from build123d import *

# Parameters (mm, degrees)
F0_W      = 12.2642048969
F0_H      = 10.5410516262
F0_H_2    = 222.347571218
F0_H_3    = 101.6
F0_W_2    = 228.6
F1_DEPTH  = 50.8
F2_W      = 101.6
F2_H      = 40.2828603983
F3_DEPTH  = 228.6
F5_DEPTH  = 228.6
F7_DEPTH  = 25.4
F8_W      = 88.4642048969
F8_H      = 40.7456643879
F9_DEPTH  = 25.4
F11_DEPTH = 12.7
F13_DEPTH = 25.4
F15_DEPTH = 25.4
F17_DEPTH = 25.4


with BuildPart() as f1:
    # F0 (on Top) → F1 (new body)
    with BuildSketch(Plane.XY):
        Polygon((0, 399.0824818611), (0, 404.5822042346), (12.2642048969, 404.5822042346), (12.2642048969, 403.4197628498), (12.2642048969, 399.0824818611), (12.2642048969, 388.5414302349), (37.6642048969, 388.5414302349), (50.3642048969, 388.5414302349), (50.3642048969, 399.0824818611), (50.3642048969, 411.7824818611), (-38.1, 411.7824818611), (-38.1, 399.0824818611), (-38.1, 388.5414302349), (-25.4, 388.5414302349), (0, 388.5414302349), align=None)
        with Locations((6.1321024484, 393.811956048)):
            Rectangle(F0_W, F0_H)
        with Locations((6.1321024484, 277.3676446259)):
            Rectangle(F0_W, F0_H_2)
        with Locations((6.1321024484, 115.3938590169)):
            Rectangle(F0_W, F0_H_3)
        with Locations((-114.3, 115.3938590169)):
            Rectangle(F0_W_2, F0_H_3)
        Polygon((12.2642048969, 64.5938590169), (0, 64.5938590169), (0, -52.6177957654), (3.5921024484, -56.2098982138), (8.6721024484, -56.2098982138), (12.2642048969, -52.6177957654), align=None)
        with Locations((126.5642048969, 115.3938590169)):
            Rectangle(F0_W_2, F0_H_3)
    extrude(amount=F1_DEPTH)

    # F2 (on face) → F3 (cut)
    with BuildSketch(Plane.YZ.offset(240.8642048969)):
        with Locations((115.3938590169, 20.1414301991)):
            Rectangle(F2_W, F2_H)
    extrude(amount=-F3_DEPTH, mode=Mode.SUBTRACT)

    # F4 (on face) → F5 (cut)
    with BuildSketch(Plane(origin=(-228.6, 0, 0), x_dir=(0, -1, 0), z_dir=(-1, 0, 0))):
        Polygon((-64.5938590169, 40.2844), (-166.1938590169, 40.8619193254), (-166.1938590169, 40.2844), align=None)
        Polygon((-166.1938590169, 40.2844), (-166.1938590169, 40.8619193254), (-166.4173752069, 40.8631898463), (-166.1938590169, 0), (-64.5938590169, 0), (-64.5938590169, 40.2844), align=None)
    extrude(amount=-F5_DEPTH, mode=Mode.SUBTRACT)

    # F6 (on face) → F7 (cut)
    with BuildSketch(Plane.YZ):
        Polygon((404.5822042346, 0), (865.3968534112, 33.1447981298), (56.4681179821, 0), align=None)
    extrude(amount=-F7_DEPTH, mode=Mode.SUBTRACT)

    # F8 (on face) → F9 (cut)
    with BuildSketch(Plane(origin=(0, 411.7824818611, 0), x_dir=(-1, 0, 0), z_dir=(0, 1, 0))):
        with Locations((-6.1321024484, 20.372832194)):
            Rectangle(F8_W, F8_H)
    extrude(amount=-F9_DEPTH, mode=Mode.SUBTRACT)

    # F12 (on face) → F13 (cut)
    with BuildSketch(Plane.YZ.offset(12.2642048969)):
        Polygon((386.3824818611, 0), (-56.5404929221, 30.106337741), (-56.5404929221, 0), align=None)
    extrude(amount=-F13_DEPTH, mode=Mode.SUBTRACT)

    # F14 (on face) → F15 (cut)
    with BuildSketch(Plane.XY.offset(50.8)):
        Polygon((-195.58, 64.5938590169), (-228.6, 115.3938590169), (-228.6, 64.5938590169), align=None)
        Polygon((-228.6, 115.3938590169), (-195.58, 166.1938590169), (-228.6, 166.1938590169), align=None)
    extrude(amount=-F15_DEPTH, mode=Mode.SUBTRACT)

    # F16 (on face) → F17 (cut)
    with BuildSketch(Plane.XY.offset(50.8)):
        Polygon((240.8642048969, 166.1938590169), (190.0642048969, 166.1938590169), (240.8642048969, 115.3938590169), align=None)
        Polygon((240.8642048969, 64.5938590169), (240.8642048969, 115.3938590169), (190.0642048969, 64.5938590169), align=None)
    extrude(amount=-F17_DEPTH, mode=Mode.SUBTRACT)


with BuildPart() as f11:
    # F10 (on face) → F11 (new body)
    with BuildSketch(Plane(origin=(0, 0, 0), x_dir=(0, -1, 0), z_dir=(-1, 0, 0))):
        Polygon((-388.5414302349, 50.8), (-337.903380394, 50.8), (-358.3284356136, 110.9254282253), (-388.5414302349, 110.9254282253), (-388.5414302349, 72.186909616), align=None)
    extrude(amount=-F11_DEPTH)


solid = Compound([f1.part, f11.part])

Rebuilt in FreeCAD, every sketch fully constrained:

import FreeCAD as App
import Part
import Sketcher
Q = App.Units.Quantity

doc = App.newDocument("Part")
body = doc.addObject("PartDesign::Body", "Body")

# Sketch on XY plane
sketch1 = body.newObject("Sketcher::SketchObject", "Sketch")
sketch1.AttachmentSupport = (doc.getObject("XY_Plane"), [""])
sketch1.MapMode = "FlatFace"
sketch1.addGeometry(Part.LineSegment(App.Vector(50, 389, 0), App.Vector(50, 412, 0)), False)
sketch1.addGeometry(Part.LineSegment(App.Vector(50, 412, 0), App.Vector(-38, 412, 0)), False)
sketch1.addGeometry(Part.LineSegment(App.Vector(-38, 412, 0), App.Vector(-38, 389, 0)), False)
sketch1.addGeometry(Part.LineSegment(App.Vector(-38, 389, 0), App.Vector(0, 389, 0)), False)
sketch1.addGeometry(Part.LineSegment(App.Vector(0, 389, 0), App.Vector(0, 166, 0)), False)
sketch1.addGeometry(Part.LineSegment(App.Vector(0, 166, 0), App.Vector(-229, 166, 0)), False)
sketch1.addGeometry(Part.LineSegment(App.Vector(-229, 166, 0), App.Vector(-229, 65, 0)), False)
sketch1.addGeometry(Part.LineSegment(App.Vector(-229, 65, 0), App.Vector(0, 65, 0)), False)
sketch1.addGeometry(Part.LineSegment(App.Vector(0, 65, 0), App.Vector(0, -53, 0)), False)
sketch1.addGeometry(Part.LineSegment(App.Vector(0, -53, 0), App.Vector(4, -56, 0)), False)
sketch1.addGeometry(Part.LineSegment(App.Vector(4, -56, 0), App.Vector(9, -56, 0)), False)
sketch1.addGeometry(Part.LineSegment(App.Vector(9, -56, 0), App.Vector(12, -53, 0)), False)
sketch1.addGeometry(Part.LineSegment(App.Vector(12, -53, 0), App.Vector(12, 65, 0)), False)
sketch1.addGeometry(Part.LineSegment(App.Vector(12, 65, 0), App.Vector(241, 65, 0)), False)
sketch1.addGeometry(Part.LineSegment(App.Vector(241, 65, 0), App.Vector(241, 166, 0)), False)
sketch1.addGeometry(Part.LineSegment(App.Vector(241, 166, 0), App.Vector(12, 166, 0)), False)
sketch1.addGeometry(Part.LineSegment(App.Vector(12, 166, 0), App.Vector(12, 389, 0)), False)
sketch1.addGeometry(Part.LineSegment(App.Vector(12, 389, 0), App.Vector(50, 389, 0)), False)
sketch1.addGeometry(Part.LineSegment(App.Vector(0, 405, 0), App.Vector(12, 405, 0)), False)
sketch1.addGeometry(Part.LineSegment(App.Vector(12, 405, 0), App.Vector(12, 399, 0)), False)
sketch1.addGeometry(Part.LineSegment(App.Vector(12, 399, 0), App.Vector(0, 399, 0)), False)
sketch1.addGeometry(Part.LineSegment(App.Vector(0, 399, 0), App.Vector(0, 405, 0)), False)
sketch1.addConstraint(Sketcher.Constraint("Coincident", 0, 2, 1, 1))
sketch1.addConstraint(Sketcher.Constraint("Coincident", 1, 2, 2, 1))
sketch1.addConstraint(Sketcher.Constraint("Coincident", 2, 2, 3, 1))
sketch1.addConstraint(Sketcher.Constraint("Coincident", 3, 2, 4, 1))
sketch1.addConstraint(Sketcher.Constraint("Coincident", 4, 2, 5, 1))
sketch1.addConstraint(Sketcher.Constraint("Coincident", 5, 2, 6, 1))
sketch1.addConstraint(Sketcher.Constraint("Coincident", 6, 2, 7, 1))
sketch1.addConstraint(Sketcher.Constraint("Coincident", 7, 2, 8, 1))
sketch1.addConstraint(Sketcher.Constraint("Coincident", 8, 2, 9, 1))
sketch1.addConstraint(Sketcher.Constraint("Coincident", 9, 2, 10, 1))
sketch1.addConstraint(Sketcher.Constraint("Coincident", 10, 2, 11, 1))
sketch1.addConstraint(Sketcher.Constraint("Coincident", 11, 2, 12, 1))
sketch1.addConstraint(Sketcher.Constraint("Coincident", 12, 2, 13, 1))
sketch1.addConstraint(Sketcher.Constraint("Coincident", 13, 2, 14, 1))
sketch1.addConstraint(Sketcher.Constraint("Coincident", 14, 2, 15, 1))
sketch1.addConstraint(Sketcher.Constraint("Coincident", 15, 2, 16, 1))
sketch1.addConstraint(Sketcher.Constraint("Coincident", 16, 2, 17, 1))
sketch1.addConstraint(Sketcher.Constraint("Coincident", 17, 2, 0, 1))
sketch1.addConstraint(Sketcher.Constraint("Coincident", 18, 2, 19, 1))
sketch1.addConstraint(Sketcher.Constraint("Coincident", 19, 2, 20, 1))
sketch1.addConstraint(Sketcher.Constraint("Coincident", 20, 2, 21, 1))
sketch1.addConstraint(Sketcher.Constraint("Coincident", 21, 2, 18, 1))
sketch1.addConstraint(Sketcher.Constraint("Vertical", 0))
sketch1.addConstraint(Sketcher.Constraint("Horizontal", 1))
sketch1.addConstraint(Sketcher.Constraint("Vertical", 2))
sketch1.addConstraint(Sketcher.Constraint("Horizontal", 3))
sketch1.addConstraint(Sketcher.Constraint("Vertical", 4))
sketch1.addConstraint(Sketcher.Constraint("Horizontal", 5))
sketch1.addConstraint(Sketcher.Constraint("Vertical", 6))
sketch1.addConstraint(Sketcher.Constraint("Horizontal", 7))
sketch1.addConstraint(Sketcher.Constraint("Vertical", 8))
sketch1.addConstraint(Sketcher.Constraint("Horizontal", 10))
sketch1.addConstraint(Sketcher.Constraint("Vertical", 12))
sketch1.addConstraint(Sketcher.Constraint("Horizontal", 13))
sketch1.addConstraint(Sketcher.Constraint("Vertical", 14))
sketch1.addConstraint(Sketcher.Constraint("Horizontal", 15))
sketch1.addConstraint(Sketcher.Constraint("Vertical", 16))
sketch1.addConstraint(Sketcher.Constraint("Horizontal", 17))
sketch1.addConstraint(Sketcher.Constraint("Horizontal", 18))
sketch1.addConstraint(Sketcher.Constraint("Vertical", 19))
sketch1.addConstraint(Sketcher.Constraint("Horizontal", 20))
sketch1.addConstraint(Sketcher.Constraint("Vertical", 21))
sketch1.addConstraint(Sketcher.Constraint("PointOnObject", 3, 2, -2))
sketch1.addConstraint(Sketcher.Constraint("PointOnObject", 7, 2, -2))
sketch1.addConstraint(Sketcher.Constraint("PointOnObject", 20, 2, -2))
sketch1.addConstraint(Sketcher.Constraint("Perpendicular", 9, 11))
sketch1.addConstraint(Sketcher.Constraint("Horizontal", 8, 2, 11, 2))
sketch1.addConstraint(Sketcher.Constraint("Horizontal", 7, 2, 12, 2))
sketch1.addConstraint(Sketcher.Constraint("Horizontal", 5, 2, 14, 2))
sketch1.addConstraint(Sketcher.Constraint("Horizontal", 3, 2, 16, 2))
sketch1.addConstraint(Sketcher.Constraint("Vertical", 12, 2, 15, 2))
sketch1.addConstraint(Sketcher.Constraint("Vertical", 16, 2, 18, 2))
sketch1.addConstraint(Sketcher.Constraint("Equal", 7, 13))
sketch1.addConstraint(Sketcher.Constraint("Equal", 3, 17))
sketch1.addConstraint(Sketcher.Constraint("Equal", 9, 11))
sketch1.addConstraint(Sketcher.Constraint("DistanceX", 5, 2, 5, 1, Q("9 in")))
sketch1.addConstraint(Sketcher.Constraint("DistanceY", 6, 2, 6, 1, Q("4 in")))
sketch1.addConstraint(Sketcher.Constraint("DistanceX", 3, 1, 3, 2, Q("1.5 in")))
sketch1.addConstraint(Sketcher.Constraint("DistanceX", 10, 1, 10, 2, Q("0.2 in")))
sketch1.addConstraint(Sketcher.Constraint("Distance", 9, Q("0.2 in")))
sketch1.addConstraint(Sketcher.Constraint("DistanceY", 19, 2, 0, 2, Q("0.5 in")))
sketch1.addConstraint(Sketcher.Constraint("DistanceY", 0, 1, 0, 2, 23.241052))
sketch1.addConstraint(Sketcher.Constraint("DistanceY", 4, 2, 4, 1, 222.347571))
sketch1.addConstraint(Sketcher.Constraint("DistanceY", 9, 2, -1, 1, 56.209898))
sketch1.addConstraint(Sketcher.Constraint("DistanceY", 8, 2, 8, 1, 117.211655))
sketch1.addConstraint(Sketcher.Constraint("DistanceY", 19, 2, 19, 1, 5.499722))
pad1 = body.newObject("PartDesign::Pad", "Pad")
pad1.Profile = sketch1
pad1.Length = Q("2 in")

# Sketch on YZ plane
sketch2 = body.newObject("Sketcher::SketchObject", "Sketch001")
sketch2.AttachmentSupport = (doc.getObject("YZ_Plane"), [""])
sketch2.MapMode = "FlatFace"
sketch2.AttachmentOffset = App.Placement(App.Vector(0, 0, 240.864205), App.Rotation())
sketch2.addGeometry(Part.LineSegment(App.Vector(65, 40, 0), App.Vector(65, 0, 0)), False)
sketch2.addGeometry(Part.LineSegment(App.Vector(65, 0, 0), App.Vector(166, 0, 0)), False)
sketch2.addGeometry(Part.LineSegment(App.Vector(166, 0, 0), App.Vector(166, 40, 0)), False)
sketch2.addGeometry(Part.LineSegment(App.Vector(166, 40, 0), App.Vector(65, 40, 0)), False)
sketch2.addConstraint(Sketcher.Constraint("Coincident", 0, 2, 1, 1))
sketch2.addConstraint(Sketcher.Constraint("Coincident", 1, 2, 2, 1))
sketch2.addConstraint(Sketcher.Constraint("Coincident", 2, 2, 3, 1))
sketch2.addConstraint(Sketcher.Constraint("Coincident", 3, 2, 0, 1))
sketch2.addConstraint(Sketcher.Constraint("Vertical", 0))
sketch2.addConstraint(Sketcher.Constraint("Horizontal", 1))
sketch2.addConstraint(Sketcher.Constraint("Vertical", 2))
sketch2.addConstraint(Sketcher.Constraint("Horizontal", 3))
sketch2.addConstraint(Sketcher.Constraint("PointOnObject", 0, 2, -1))
sketch2.addConstraint(Sketcher.Constraint("DistanceX", 1, 1, 1, 2, Q("4 in")))
sketch2.addConstraint(Sketcher.Constraint("DistanceY", 0, 2, 0, 1, 40.28286))
sketch2.addConstraint(Sketcher.Constraint("DistanceX", -1, 1, 0, 2, 64.593859))
pocket1 = body.newObject("PartDesign::Pocket", "Pocket")
pocket1.Profile = sketch2
pocket1.Length = Q("9 in")

# Sketch on YZ plane
sketch3 = body.newObject("Sketcher::SketchObject", "Sketch002")
sketch3.AttachmentSupport = (doc.getObject("YZ_Plane"), [""])
sketch3.MapMode = "FlatFace"
sketch3.AttachmentOffset = App.Placement(App.Vector(0, 0, -9 * 25.4), App.Rotation())
sketch3.addGeometry(Part.LineSegment(App.Vector(64.59, 40.28, 0), App.Vector(166.19, 40.86, 0)), False)
sketch3.addGeometry(Part.LineSegment(App.Vector(166.19, 40.86, 0), App.Vector(166.42, 40.86, 0)), False)
sketch3.addGeometry(Part.LineSegment(App.Vector(166.42, 40.86, 0), App.Vector(166.19, 0, 0)), False)
sketch3.addGeometry(Part.LineSegment(App.Vector(166.19, 0, 0), App.Vector(64.59, 0, 0)), False)
sketch3.addGeometry(Part.LineSegment(App.Vector(64.59, 0, 0), App.Vector(64.59, 40.28, 0)), False)
sketch3.addConstraint(Sketcher.Constraint("Coincident", 0, 2, 1, 1))
sketch3.addConstraint(Sketcher.Constraint("Coincident", 1, 2, 2, 1))
sketch3.addConstraint(Sketcher.Constraint("Coincident", 2, 2, 3, 1))
sketch3.addConstraint(Sketcher.Constraint("Coincident", 3, 2, 4, 1))
sketch3.addConstraint(Sketcher.Constraint("Coincident", 4, 2, 0, 1))
sketch3.addConstraint(Sketcher.Constraint("Horizontal", 3))
sketch3.addConstraint(Sketcher.Constraint("Vertical", 4))
sketch3.addConstraint(Sketcher.Constraint("PointOnObject", 2, 2, -1))
sketch3.addConstraint(Sketcher.Constraint("Parallel", 0, 1))
sketch3.addConstraint(Sketcher.Constraint("Vertical", 0, 2, 2, 2))
sketch3.addConstraint(Sketcher.Constraint("DistanceX", 3, 2, 3, 1, Q("4 in")))
sketch3.addConstraint(Sketcher.Constraint("DistanceY", 4, 1, 4, 2, Q("1.586 in")))
sketch3.addConstraint(Sketcher.Constraint("Distance", 1, Q("0.0088 in")))
sketch3.addConstraint(Sketcher.Constraint("Distance", 2, 40.863801))
sketch3.addConstraint(Sketcher.Constraint("DistanceX", -1, 1, 0, 2, 166.193859))
pocket2 = body.newObject("PartDesign::Pocket", "Pocket001")
pocket2.Profile = sketch3
pocket2.Length = Q("9 in")
pocket2.Reversed = True

# Sketch on YZ plane
sketch4 = body.newObject("Sketcher::SketchObject", "Sketch003")
sketch4.AttachmentSupport = (doc.getObject("YZ_Plane"), [""])
sketch4.MapMode = "FlatFace"
sketch4.addGeometry(Part.LineSegment(App.Vector(405, 0, 0), App.Vector(865, 33, 0)), False)
sketch4.addGeometry(Part.LineSegment(App.Vector(865, 33, 0), App.Vector(56, 0, 0)), False)
sketch4.addGeometry(Part.LineSegment(App.Vector(56, 0, 0), App.Vector(405, 0, 0)), False)
sketch4.addConstraint(Sketcher.Constraint("Coincident", 0, 2, 1, 1))
sketch4.addConstraint(Sketcher.Constraint("Coincident", 1, 2, 2, 1))
sketch4.addConstraint(Sketcher.Constraint("Coincident", 2, 2, 0, 1))
sketch4.addConstraint(Sketcher.Constraint("Horizontal", 2))
sketch4.addConstraint(Sketcher.Constraint("PointOnObject", 1, 2, -1))
sketch4.addConstraint(Sketcher.Constraint("DistanceY", -1, 1, 0, 2, 33.144798))
sketch4.addConstraint(Sketcher.Constraint("DistanceX", 2, 1, 2, 2, 348.114086))
sketch4.addConstraint(Sketcher.Constraint("DistanceX", 2, 2, 0, 2, 460.814649))
sketch4.addConstraint(Sketcher.Constraint("DistanceX", -1, 1, 0, 2, 865.396853))
pocket3 = body.newObject("PartDesign::Pocket", "Pocket002")
pocket3.Profile = sketch4
pocket3.Length = Q("1 in")

# Sketch on XZ plane
sketch5 = body.newObject("Sketcher::SketchObject", "Sketch004")
sketch5.AttachmentSupport = (doc.getObject("XZ_Plane"), [""])
sketch5.MapMode = "FlatFace"
sketch5.AttachmentOffset = App.Placement(App.Vector(0, 0, -411.782482), App.Rotation())
sketch5.addGeometry(Part.LineSegment(App.Vector(50, 41, 0), App.Vector(50, 0, 0)), False)
sketch5.addGeometry(Part.LineSegment(App.Vector(50, 0, 0), App.Vector(-38, 0, 0)), False)
sketch5.addGeometry(Part.LineSegment(App.Vector(-38, 0, 0), App.Vector(-38, 41, 0)), False)
sketch5.addGeometry(Part.LineSegment(App.Vector(-38, 41, 0), App.Vector(50, 41, 0)), False)
sketch5.addConstraint(Sketcher.Constraint("Coincident", 0, 2, 1, 1))
sketch5.addConstraint(Sketcher.Constraint("Coincident", 1, 2, 2, 1))
sketch5.addConstraint(Sketcher.Constraint("Coincident", 2, 2, 3, 1))
sketch5.addConstraint(Sketcher.Constraint("Coincident", 3, 2, 0, 1))
sketch5.addConstraint(Sketcher.Constraint("Vertical", 0))
sketch5.addConstraint(Sketcher.Constraint("Horizontal", 1))
sketch5.addConstraint(Sketcher.Constraint("Vertical", 2))
sketch5.addConstraint(Sketcher.Constraint("Horizontal", 3))
sketch5.addConstraint(Sketcher.Constraint("PointOnObject", 0, 2, -1))
sketch5.addConstraint(Sketcher.Constraint("DistanceX", 1, 2, -1, 1, Q("1.5 in")))
sketch5.addConstraint(Sketcher.Constraint("DistanceX", 1, 2, 1, 1, 88.464205))
sketch5.addConstraint(Sketcher.Constraint("DistanceY", 0, 2, 0, 1, 40.745664))
pocket4 = body.newObject("PartDesign::Pocket", "Pocket003")
pocket4.Profile = sketch5
pocket4.Length = Q("1 in")
pocket4.Reversed = True

# Sketch on YZ plane
sketch6 = body.newObject("Sketcher::SketchObject", "Sketch005")
sketch6.AttachmentSupport = (doc.getObject("YZ_Plane"), [""])
sketch6.MapMode = "FlatFace"
sketch6.AttachmentOffset = App.Placement(App.Vector(0, 0, 12.264205), App.Rotation())
sketch6.addGeometry(Part.LineSegment(App.Vector(386, 0, 0), App.Vector(-57, 30, 0)), False)
sketch6.addGeometry(Part.LineSegment(App.Vector(-57, 30, 0), App.Vector(-57, 0, 0)), False)
sketch6.addGeometry(Part.LineSegment(App.Vector(-57, 0, 0), App.Vector(386, 0, 0)), False)
sketch6.addConstraint(Sketcher.Constraint("Coincident", 0, 2, 1, 1))
sketch6.addConstraint(Sketcher.Constraint("Coincident", 1, 2, 2, 1))
sketch6.addConstraint(Sketcher.Constraint("Coincident", 2, 2, 0, 1))
sketch6.addConstraint(Sketcher.Constraint("Vertical", 1))
sketch6.addConstraint(Sketcher.Constraint("Horizontal", 2))
sketch6.addConstraint(Sketcher.Constraint("PointOnObject", 1, 2, -1))
sketch6.addConstraint(Sketcher.Constraint("Distance", 0, 443.944989))
sketch6.addConstraint(Sketcher.Constraint("DistanceX", 2, 1, 2, 2, 442.922975))
sketch6.addConstraint(Sketcher.Constraint("DistanceX", -1, 1, 2, 2, 386.382482))
pocket5 = body.newObject("PartDesign::Pocket", "Pocket004")
pocket5.Profile = sketch6
pocket5.Length = Q("1 in")

# Sketch on XY plane
sketch7 = body.newObject("Sketcher::SketchObject", "Sketch006")
sketch7.AttachmentSupport = (doc.getObject("XY_Plane"), [""])
sketch7.MapMode = "FlatFace"
sketch7.AttachmentOffset = App.Placement(App.Vector(0, 0, 2 * 25.4), App.Rotation())
sketch7.addGeometry(Part.LineSegment(App.Vector(-196, 65, 0), App.Vector(-229, 115, 0)), False)
sketch7.addGeometry(Part.LineSegment(App.Vector(-229, 115, 0), App.Vector(-229, 65, 0)), False)
sketch7.addGeometry(Part.LineSegment(App.Vector(-229, 65, 0), App.Vector(-196, 65, 0)), False)
sketch7.addGeometry(Part.LineSegment(App.Vector(-229, 115, 0), App.Vector(-196, 166, 0)), False)
sketch7.addGeometry(Part.LineSegment(App.Vector(-196, 166, 0), App.Vector(-229, 166, 0)), False)
sketch7.addGeometry(Part.LineSegment(App.Vector(-229, 166, 0), App.Vector(-229, 115, 0)), False)
sketch7.addConstraint(Sketcher.Constraint("Coincident", 0, 2, 1, 1))
sketch7.addConstraint(Sketcher.Constraint("Coincident", 1, 2, 2, 1))
sketch7.addConstraint(Sketcher.Constraint("Coincident", 2, 2, 0, 1))
sketch7.addConstraint(Sketcher.Constraint("Coincident", 3, 2, 4, 1))
sketch7.addConstraint(Sketcher.Constraint("Coincident", 4, 2, 5, 1))
sketch7.addConstraint(Sketcher.Constraint("Coincident", 5, 2, 3, 1))
sketch7.addConstraint(Sketcher.Constraint("Vertical", 1))
sketch7.addConstraint(Sketcher.Constraint("Horizontal", 2))
sketch7.addConstraint(Sketcher.Constraint("Horizontal", 4))
sketch7.addConstraint(Sketcher.Constraint("Vertical", 5))
sketch7.addConstraint(Sketcher.Constraint("Coincident", 5, 2, 0, 2))
sketch7.addConstraint(Sketcher.Constraint("Vertical", 2, 2, 3, 2))
sketch7.addConstraint(Sketcher.Constraint("Equal", 1, 5))
sketch7.addConstraint(Sketcher.Constraint("DistanceY", 1, 2, 1, 1, Q("2 in")))
sketch7.addConstraint(Sketcher.Constraint("DistanceX", 2, 1, 2, 2, Q("1.3 in")))
sketch7.addConstraint(Sketcher.Constraint("DistanceX", 0, 2, -1, 1, Q("9 in")))
sketch7.addConstraint(Sketcher.Constraint("DistanceY", -1, 1, 0, 2, 115.393859))
pocket6 = body.newObject("PartDesign::Pocket", "Pocket005")
pocket6.Profile = sketch7
pocket6.Length = Q("1 in")

# Sketch on XY plane
sketch8 = body.newObject("Sketcher::SketchObject", "Sketch007")
sketch8.AttachmentSupport = (doc.getObject("XY_Plane"), [""])
sketch8.MapMode = "FlatFace"
sketch8.AttachmentOffset = App.Placement(App.Vector(0, 0, 2 * 25.4), App.Rotation())
sketch8.addGeometry(Part.LineSegment(App.Vector(241, 166, 0), App.Vector(190, 166, 0)), False)
sketch8.addGeometry(Part.LineSegment(App.Vector(190, 166, 0), App.Vector(241, 115, 0)), False)
sketch8.addGeometry(Part.LineSegment(App.Vector(241, 115, 0), App.Vector(241, 166, 0)), False)
sketch8.addGeometry(Part.LineSegment(App.Vector(241, 65, 0), App.Vector(241, 115, 0)), False)
sketch8.addGeometry(Part.LineSegment(App.Vector(241, 115, 0), App.Vector(190, 65, 0)), False)
sketch8.addGeometry(Part.LineSegment(App.Vector(190, 65, 0), App.Vector(241, 65, 0)), False)
sketch8.addConstraint(Sketcher.Constraint("Coincident", 0, 2, 1, 1))
sketch8.addConstraint(Sketcher.Constraint("Coincident", 1, 2, 2, 1))
sketch8.addConstraint(Sketcher.Constraint("Coincident", 2, 2, 0, 1))
sketch8.addConstraint(Sketcher.Constraint("Coincident", 3, 2, 4, 1))
sketch8.addConstraint(Sketcher.Constraint("Coincident", 4, 2, 5, 1))
sketch8.addConstraint(Sketcher.Constraint("Coincident", 5, 2, 3, 1))
sketch8.addConstraint(Sketcher.Constraint("Horizontal", 0))
sketch8.addConstraint(Sketcher.Constraint("Vertical", 2))
sketch8.addConstraint(Sketcher.Constraint("Vertical", 3))
sketch8.addConstraint(Sketcher.Constraint("Horizontal", 5))
sketch8.addConstraint(Sketcher.Constraint("Coincident", 3, 2, 1, 2))
sketch8.addConstraint(Sketcher.Constraint("Perpendicular", 1, 4))
sketch8.addConstraint(Sketcher.Constraint("Vertical", 0, 2, 4, 2))
sketch8.addConstraint(Sketcher.Constraint("Equal", 5, 2))
sketch8.addConstraint(Sketcher.Constraint("DistanceX", 0, 2, 0, 1, Q("2 in")))
sketch8.addConstraint(Sketcher.Constraint("DistanceY", -1, 1, 0, 2, 166.193859))
sketch8.addConstraint(Sketcher.Constraint("DistanceX", -1, 1, 0, 2, 190.064205))
pocket7 = body.newObject("PartDesign::Pocket", "Pocket006")
pocket7.Profile = sketch8
pocket7.Length = Q("1 in")
body2 = doc.addObject("PartDesign::Body", "Body001")

# Sketch on YZ plane
sketch9 = body2.newObject("Sketcher::SketchObject", "Sketch008")
sketch9.AttachmentSupport = (doc.getObject("YZ_Plane001"), [""])
sketch9.MapMode = "FlatFace"
sketch9.addGeometry(Part.LineSegment(App.Vector(389, 51, 0), App.Vector(338, 51, 0)), False)
sketch9.addGeometry(Part.LineSegment(App.Vector(338, 51, 0), App.Vector(358, 111, 0)), False)
sketch9.addGeometry(Part.LineSegment(App.Vector(358, 111, 0), App.Vector(389, 111, 0)), False)
sketch9.addGeometry(Part.LineSegment(App.Vector(389, 111, 0), App.Vector(389, 51, 0)), False)
sketch9.addConstraint(Sketcher.Constraint("Coincident", 0, 2, 1, 1))
sketch9.addConstraint(Sketcher.Constraint("Coincident", 1, 2, 2, 1))
sketch9.addConstraint(Sketcher.Constraint("Coincident", 2, 2, 3, 1))
sketch9.addConstraint(Sketcher.Constraint("Coincident", 3, 2, 0, 1))
sketch9.addConstraint(Sketcher.Constraint("Horizontal", 0))
sketch9.addConstraint(Sketcher.Constraint("Horizontal", 2))
sketch9.addConstraint(Sketcher.Constraint("Vertical", 3))
sketch9.addConstraint(Sketcher.Constraint("DistanceY", -1, 1, 0, 2, Q("2 in")))
sketch9.addConstraint(Sketcher.Constraint("Distance", 1, Q("2.5 in")))
sketch9.addConstraint(Sketcher.Constraint("DistanceX", 0, 2, 0, 1, 50.63805))
sketch9.addConstraint(Sketcher.Constraint("DistanceY", 3, 2, 3, 1, 60.125428))
sketch9.addConstraint(Sketcher.Constraint("DistanceX", -1, 1, 0, 2, 337.90338))
pad2 = body2.newObject("PartDesign::Pad", "Pad001")
pad2.Profile = sketch9
pad2.Length = Q("0.5 in")

doc.recompute()
